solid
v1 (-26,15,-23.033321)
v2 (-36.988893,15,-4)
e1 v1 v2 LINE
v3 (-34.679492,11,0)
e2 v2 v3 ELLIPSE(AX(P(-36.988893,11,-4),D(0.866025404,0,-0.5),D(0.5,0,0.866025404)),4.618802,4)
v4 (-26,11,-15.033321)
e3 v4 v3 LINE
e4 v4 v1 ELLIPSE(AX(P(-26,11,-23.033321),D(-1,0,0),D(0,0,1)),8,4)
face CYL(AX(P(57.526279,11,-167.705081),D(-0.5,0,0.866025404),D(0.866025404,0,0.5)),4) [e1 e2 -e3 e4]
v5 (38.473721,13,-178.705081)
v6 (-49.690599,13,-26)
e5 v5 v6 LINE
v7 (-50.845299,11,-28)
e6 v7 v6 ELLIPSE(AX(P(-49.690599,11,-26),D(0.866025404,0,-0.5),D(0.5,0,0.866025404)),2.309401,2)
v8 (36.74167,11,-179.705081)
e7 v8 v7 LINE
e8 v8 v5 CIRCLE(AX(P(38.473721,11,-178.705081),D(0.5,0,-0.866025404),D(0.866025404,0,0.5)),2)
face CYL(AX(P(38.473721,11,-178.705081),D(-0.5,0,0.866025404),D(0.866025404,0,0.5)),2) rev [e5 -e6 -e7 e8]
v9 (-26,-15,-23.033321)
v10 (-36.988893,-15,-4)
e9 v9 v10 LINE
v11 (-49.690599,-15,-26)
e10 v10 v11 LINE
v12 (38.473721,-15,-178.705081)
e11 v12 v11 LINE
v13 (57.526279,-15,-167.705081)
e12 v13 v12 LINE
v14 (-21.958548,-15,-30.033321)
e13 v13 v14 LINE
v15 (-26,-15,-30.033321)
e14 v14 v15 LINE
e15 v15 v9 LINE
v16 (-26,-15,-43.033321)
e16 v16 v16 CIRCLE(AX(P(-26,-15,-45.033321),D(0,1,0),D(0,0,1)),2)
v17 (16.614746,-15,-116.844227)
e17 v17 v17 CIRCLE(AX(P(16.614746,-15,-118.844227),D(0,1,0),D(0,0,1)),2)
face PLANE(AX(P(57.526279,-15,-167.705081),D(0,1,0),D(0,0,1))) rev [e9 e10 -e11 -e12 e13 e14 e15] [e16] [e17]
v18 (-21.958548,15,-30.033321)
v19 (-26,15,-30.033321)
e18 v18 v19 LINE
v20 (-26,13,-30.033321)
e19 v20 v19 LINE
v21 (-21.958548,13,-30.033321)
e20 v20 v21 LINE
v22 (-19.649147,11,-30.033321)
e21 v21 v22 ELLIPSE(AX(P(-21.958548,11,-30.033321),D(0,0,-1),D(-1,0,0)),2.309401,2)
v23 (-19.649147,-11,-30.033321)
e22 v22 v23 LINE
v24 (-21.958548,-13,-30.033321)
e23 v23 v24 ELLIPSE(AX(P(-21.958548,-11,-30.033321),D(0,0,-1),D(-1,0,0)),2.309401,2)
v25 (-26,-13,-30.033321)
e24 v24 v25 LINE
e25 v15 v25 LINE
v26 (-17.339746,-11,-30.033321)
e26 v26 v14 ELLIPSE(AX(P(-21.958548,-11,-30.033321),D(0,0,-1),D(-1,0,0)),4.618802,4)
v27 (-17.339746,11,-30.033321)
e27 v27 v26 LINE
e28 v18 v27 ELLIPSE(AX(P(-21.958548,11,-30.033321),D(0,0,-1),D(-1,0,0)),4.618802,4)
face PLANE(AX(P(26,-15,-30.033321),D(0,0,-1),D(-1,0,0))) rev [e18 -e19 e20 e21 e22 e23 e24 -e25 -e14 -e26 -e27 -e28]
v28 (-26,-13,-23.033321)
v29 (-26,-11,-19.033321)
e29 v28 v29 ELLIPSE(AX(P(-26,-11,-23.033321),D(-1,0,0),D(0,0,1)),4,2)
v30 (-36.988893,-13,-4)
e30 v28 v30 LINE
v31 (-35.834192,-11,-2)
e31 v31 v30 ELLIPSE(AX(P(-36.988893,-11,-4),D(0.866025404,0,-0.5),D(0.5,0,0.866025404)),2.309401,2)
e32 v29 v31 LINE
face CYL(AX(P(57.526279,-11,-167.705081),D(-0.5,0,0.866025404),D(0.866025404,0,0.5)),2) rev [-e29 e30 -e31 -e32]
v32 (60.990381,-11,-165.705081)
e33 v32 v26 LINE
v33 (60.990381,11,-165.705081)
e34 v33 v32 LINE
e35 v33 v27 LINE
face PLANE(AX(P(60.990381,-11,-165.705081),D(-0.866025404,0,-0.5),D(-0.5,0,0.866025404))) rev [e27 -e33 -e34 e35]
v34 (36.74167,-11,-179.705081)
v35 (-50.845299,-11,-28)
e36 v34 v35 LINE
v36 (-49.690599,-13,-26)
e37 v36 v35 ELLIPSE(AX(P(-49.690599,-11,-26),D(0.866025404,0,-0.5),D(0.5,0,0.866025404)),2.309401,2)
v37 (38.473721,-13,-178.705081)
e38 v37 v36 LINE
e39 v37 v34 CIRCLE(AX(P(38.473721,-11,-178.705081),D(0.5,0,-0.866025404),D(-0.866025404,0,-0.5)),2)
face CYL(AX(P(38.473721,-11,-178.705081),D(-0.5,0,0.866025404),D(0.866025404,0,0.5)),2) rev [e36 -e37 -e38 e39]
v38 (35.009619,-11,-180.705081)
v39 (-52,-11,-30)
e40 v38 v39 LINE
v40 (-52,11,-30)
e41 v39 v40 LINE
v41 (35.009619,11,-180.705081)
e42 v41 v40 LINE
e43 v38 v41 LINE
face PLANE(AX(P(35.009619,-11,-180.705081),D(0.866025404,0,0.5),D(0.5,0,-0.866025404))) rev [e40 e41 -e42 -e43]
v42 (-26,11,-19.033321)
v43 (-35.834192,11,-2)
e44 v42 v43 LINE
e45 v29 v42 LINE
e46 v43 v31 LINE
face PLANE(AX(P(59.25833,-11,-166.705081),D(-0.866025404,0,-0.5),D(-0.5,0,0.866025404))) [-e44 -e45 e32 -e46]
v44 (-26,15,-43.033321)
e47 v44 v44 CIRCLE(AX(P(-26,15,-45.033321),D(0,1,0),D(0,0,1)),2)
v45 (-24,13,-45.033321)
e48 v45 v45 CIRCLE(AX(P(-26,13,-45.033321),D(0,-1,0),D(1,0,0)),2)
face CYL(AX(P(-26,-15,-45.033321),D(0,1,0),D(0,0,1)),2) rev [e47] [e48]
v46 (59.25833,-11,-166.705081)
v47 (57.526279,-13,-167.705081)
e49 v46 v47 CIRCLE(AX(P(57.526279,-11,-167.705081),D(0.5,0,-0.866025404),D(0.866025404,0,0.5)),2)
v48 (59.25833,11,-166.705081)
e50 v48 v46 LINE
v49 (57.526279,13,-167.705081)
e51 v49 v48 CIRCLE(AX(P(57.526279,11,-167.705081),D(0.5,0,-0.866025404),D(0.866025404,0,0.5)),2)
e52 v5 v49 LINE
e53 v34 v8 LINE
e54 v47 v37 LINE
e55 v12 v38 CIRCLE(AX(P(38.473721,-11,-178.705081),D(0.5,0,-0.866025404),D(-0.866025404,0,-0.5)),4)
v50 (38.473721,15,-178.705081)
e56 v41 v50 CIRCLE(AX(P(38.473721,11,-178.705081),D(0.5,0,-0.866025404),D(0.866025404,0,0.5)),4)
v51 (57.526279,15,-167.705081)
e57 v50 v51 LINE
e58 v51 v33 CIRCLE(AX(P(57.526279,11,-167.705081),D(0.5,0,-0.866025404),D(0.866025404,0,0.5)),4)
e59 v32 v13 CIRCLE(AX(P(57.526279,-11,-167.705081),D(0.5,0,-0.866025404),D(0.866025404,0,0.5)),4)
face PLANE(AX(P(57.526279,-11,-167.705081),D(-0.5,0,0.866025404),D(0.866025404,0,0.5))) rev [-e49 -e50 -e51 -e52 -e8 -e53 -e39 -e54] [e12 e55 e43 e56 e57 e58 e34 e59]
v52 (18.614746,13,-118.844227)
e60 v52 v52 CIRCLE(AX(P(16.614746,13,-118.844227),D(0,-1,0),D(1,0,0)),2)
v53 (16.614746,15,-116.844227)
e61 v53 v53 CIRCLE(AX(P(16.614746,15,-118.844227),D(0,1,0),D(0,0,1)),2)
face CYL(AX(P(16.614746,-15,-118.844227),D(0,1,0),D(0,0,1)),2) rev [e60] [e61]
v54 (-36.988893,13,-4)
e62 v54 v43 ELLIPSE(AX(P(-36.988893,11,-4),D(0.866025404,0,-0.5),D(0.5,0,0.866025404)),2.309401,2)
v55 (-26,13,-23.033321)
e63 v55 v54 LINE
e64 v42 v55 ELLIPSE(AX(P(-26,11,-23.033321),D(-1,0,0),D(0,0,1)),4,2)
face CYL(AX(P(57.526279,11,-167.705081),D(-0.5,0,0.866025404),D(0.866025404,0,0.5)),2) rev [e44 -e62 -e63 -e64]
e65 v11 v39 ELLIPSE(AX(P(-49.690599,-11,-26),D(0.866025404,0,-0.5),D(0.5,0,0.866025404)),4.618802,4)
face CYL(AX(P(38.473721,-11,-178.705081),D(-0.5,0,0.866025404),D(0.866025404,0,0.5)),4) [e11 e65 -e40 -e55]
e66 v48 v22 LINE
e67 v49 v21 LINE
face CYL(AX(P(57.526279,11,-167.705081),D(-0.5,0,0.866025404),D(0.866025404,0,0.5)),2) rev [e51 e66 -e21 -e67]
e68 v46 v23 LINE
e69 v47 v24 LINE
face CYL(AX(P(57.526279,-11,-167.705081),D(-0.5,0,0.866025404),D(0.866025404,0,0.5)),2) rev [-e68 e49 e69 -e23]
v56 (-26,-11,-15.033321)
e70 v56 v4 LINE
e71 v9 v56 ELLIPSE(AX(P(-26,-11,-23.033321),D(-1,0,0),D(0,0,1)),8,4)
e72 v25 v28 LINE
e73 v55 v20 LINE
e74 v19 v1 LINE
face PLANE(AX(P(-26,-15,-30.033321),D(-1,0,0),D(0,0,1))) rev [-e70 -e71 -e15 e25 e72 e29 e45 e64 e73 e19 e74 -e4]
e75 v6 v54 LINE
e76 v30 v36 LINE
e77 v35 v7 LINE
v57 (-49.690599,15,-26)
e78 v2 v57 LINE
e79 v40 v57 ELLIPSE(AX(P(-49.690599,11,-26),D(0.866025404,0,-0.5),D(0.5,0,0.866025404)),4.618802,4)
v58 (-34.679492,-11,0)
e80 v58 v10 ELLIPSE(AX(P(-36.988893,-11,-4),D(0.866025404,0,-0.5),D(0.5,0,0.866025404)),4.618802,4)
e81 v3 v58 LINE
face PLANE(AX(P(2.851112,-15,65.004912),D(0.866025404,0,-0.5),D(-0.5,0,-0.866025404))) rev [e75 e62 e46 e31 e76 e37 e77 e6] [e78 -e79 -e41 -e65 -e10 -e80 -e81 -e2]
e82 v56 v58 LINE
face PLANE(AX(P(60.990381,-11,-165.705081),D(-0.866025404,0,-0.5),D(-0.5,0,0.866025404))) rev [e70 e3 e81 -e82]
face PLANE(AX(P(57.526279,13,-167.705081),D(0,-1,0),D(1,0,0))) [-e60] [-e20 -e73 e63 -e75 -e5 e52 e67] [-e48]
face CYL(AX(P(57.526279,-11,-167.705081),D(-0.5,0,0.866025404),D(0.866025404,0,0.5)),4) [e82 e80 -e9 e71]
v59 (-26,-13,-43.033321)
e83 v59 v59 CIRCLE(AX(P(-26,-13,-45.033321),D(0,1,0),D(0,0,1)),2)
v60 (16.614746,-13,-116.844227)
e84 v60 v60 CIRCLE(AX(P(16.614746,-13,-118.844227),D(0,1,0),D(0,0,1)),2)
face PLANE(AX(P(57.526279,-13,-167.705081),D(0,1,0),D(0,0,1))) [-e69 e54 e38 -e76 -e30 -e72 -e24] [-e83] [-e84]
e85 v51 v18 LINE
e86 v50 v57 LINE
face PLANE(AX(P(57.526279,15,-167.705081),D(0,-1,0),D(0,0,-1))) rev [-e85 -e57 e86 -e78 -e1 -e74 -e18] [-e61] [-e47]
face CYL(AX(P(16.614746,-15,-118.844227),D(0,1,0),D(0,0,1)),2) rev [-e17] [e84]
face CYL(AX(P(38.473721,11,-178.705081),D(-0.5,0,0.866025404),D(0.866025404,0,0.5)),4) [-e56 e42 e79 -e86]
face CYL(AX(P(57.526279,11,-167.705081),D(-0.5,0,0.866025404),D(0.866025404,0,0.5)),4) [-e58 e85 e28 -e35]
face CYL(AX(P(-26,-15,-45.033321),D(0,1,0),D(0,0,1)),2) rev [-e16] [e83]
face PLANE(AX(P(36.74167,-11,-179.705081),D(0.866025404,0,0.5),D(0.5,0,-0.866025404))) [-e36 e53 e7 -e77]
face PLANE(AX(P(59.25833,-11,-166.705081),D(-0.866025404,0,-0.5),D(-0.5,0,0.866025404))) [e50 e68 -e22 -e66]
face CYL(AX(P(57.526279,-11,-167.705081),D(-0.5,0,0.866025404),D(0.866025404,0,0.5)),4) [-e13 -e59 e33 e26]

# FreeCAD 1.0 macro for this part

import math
import FreeCAD as App
import Part
import Sketcher

V = App.Vector
Q = App.Units.Quantity

doc = App.newDocument("Part")
body = doc.addObject("PartDesign::Body", "Body")

# Sketch on an angled plane
sketch1 = body.newObject("Sketcher::SketchObject", "Sketch")
sketch1.Placement = App.Placement(V(-52, 0, 0), App.Rotation(V(-0.866025404, 0, -0.5), V(0, 1, 0), V(0.5, 0, -0.866025404), "ZXY"))
sketch1.addGeometry([
    Part.LineSegment(V(-11, -15, 0), V(11, -15, 0)),  # 0
    Part.ArcOfCircle(Part.Circle(V(11, -11, 0), V(0, 0, 1), 4), math.radians(-90), math.radians(0)),  # 1
    Part.LineSegment(V(15, -11, 0), V(15, 11, 0)),  # 2
    Part.ArcOfCircle(Part.Circle(V(11, 11, 0), V(0, 0, 1), 4), math.radians(0), math.radians(90)),  # 3
    Part.LineSegment(V(11, 15, 0), V(-11, 15, 0)),  # 4
    Part.ArcOfCircle(Part.Circle(V(-11, 11, 0), V(0, 0, 1), 4), math.radians(90), math.radians(180)),  # 5
    Part.LineSegment(V(-15, 11, 0), V(-15, -11, 0)),  # 6
    Part.ArcOfCircle(Part.Circle(V(-11, -11, 0), V(0, 0, 1), 4), math.radians(180), math.radians(270)),  # 7
    Part.LineSegment(V(11, -13, 0), V(-11, -13, 0)),  # 8
    Part.ArcOfCircle(Part.Circle(V(-11, -11, 0), V(0, 0, 1), 2), math.radians(-180), math.radians(-90)),  # 9
    Part.LineSegment(V(-13, -11, 0), V(-13, 11, 0)),  # 10
    Part.ArcOfCircle(Part.Circle(V(-11, 11, 0), V(0, 0, 1), 2), math.radians(90), math.radians(180)),  # 11
    Part.LineSegment(V(-11, 13, 0), V(11, 13, 0)),  # 12
    Part.ArcOfCircle(Part.Circle(V(11, 11, 0), V(0, 0, 1), 2), math.radians(0), math.radians(90)),  # 13
    Part.LineSegment(V(13, 11, 0), V(13, -11, 0)),  # 14
    Part.ArcOfCircle(Part.Circle(V(11, -11, 0), V(0, 0, 1), 2), math.radians(-90), math.radians(0)),  # 15
], False)
sketch1.addConstraint([
    Sketcher.Constraint("Tangent", 0, 2, 1, 1),
    Sketcher.Constraint("Tangent", 1, 2, 2, 1),
    Sketcher.Constraint("Tangent", 2, 2, 3, 1),
    Sketcher.Constraint("Tangent", 3, 2, 4, 1),
    Sketcher.Constraint("Tangent", 4, 2, 5, 1),
    Sketcher.Constraint("Tangent", 5, 2, 6, 1),
    Sketcher.Constraint("Tangent", 6, 2, 7, 1),
    Sketcher.Constraint("Tangent", 7, 2, 0, 1),
    Sketcher.Constraint("Tangent", 8, 2, 9, 2),
    Sketcher.Constraint("Tangent", 9, 1, 10, 1),
    Sketcher.Constraint("Tangent", 10, 2, 11, 2),
    Sketcher.Constraint("Tangent", 11, 1, 12, 1),
    Sketcher.Constraint("Tangent", 12, 2, 13, 2),
    Sketcher.Constraint("Tangent", 13, 1, 14, 1),
    Sketcher.Constraint("Tangent", 14, 2, 15, 2),
    Sketcher.Constraint("Tangent", 15, 1, 8, 1),
    Sketcher.Constraint("Horizontal", 0),
    Sketcher.Constraint("Vertical", 2),
    Sketcher.Constraint("Horizontal", 4),
    Sketcher.Constraint("Vertical", 6),
    Sketcher.Constraint("Horizontal", 8),
    Sketcher.Constraint("Vertical", 10),
    Sketcher.Constraint("Horizontal", 12),
    Sketcher.Constraint("Vertical", 14),
    Sketcher.Constraint("Coincident", 9, 3, 7, 3),
    Sketcher.Constraint("Coincident", 11, 3, 5, 3),
    Sketcher.Constraint("Coincident", 13, 3, 3, 3),
    Sketcher.Constraint("Equal", 1, 3),
    Sketcher.Constraint("Equal", 3, 5),
    Sketcher.Constraint("Equal", 5, 7),
    Sketcher.Constraint("Equal", 13, 15),
    Sketcher.Constraint("Symmetric", 1, 3, 5, 3, -1, 1),
    Sketcher.Constraint("Equal", 12, 2),
    Sketcher.Constraint("Radius", 1, 4.0),
    Sketcher.Constraint("Radius", 9, 2.0),
    Sketcher.Constraint("DistanceX", 0, 1, 0, 2, 22.0),
])
pad1 = body.newObject("PartDesign::Pad", "Pad")
pad1.Profile = sketch1
pad1.Length = 200

# Sketch on XZ plane
sketch2 = body.newObject("Sketcher::SketchObject", "Sketch001")
sketch2.AttachmentSupport = (doc.getObject("XZ_Plane"), [""])
sketch2.MapMode = "FlatFace"
sketch2.addGeometry([
    Part.LineSegment(V(3, 65, 0), V(-66, -53, 0)),
    Part.LineSegment(V(-66, -53, 0), V(-92, -38, 0)),
    Part.LineSegment(V(-92, -38, 0), V(-23, 80, 0)),
    Part.LineSegment(V(-23, 80, 0), V(3, 65, 0)),
], False)
sketch2.addConstraint([
    Sketcher.Constraint("Coincident", 0, 2, 1, 1),
    Sketcher.Constraint("Coincident", 1, 2, 2, 1),
    Sketcher.Constraint("Coincident", 2, 2, 3, 1),
    Sketcher.Constraint("Coincident", 3, 2, 0, 1),
    Sketcher.Constraint("Perpendicular", 0, 1),
    Sketcher.Constraint("Perpendicular", 1, 2),
    Sketcher.Constraint("Perpendicular", 2, 3),
    Sketcher.Constraint("Angle", 0, Q("-120 deg")),
    Sketcher.Constraint("Distance", 1, 30.0),
    Sketcher.Constraint("DistanceY", 1, 2, 2, 2, 118.435898),
    Sketcher.Constraint("DistanceX", 1, 2, -1, 1, 91.508648),
    Sketcher.Constraint("DistanceY", 0, 2, -1, 1, 53.430986),
])
pocket1 = body.newObject("PartDesign::Pocket", "Pocket")
pocket1.Profile = sketch2
pocket1.Type = "ThroughAll"
pocket1.Midplane = True

# Sketch on XZ plane
sketch3 = body.newObject("Sketcher::SketchObject", "Sketch002")
sketch3.AttachmentSupport = (doc.getObject("XZ_Plane"), [""])
sketch3.MapMode = "FlatFace"
sketch3.addGeometry([
    Part.Circle(V(-26, -45, 0), V(0, 0, 1), 2),
    Part.Circle(V(16.6, -118.8, 0), V(0, 0, 1), 2),
], False)
sketch3.addConstraint([
    Sketcher.Constraint("Equal", 0, 1),
    Sketcher.Constraint("Diameter", 0, 4.0),
    Sketcher.Constraint("DistanceX", 0, 3, -1, 1, 26.0),
    Sketcher.Constraint("DistanceY", 0, 3, -1, 1, 45.033321),
    Sketcher.Constraint("DistanceX", -1, 1, 1, 3, 16.614746),
    Sketcher.Constraint("DistanceY", 1, 3, -1, 1, 118.844227),
])
pocket2 = body.newObject("PartDesign::Pocket", "Pocket001")
pocket2.Profile = sketch3
pocket2.Type = "ThroughAll"
pocket2.Midplane = True

# Sketch on XZ plane
sketch4 = body.newObject("Sketcher::SketchObject", "Sketch003")
sketch4.AttachmentSupport = (doc.getObject("XZ_Plane"), [""])
sketch4.MapMode = "FlatFace"
sketch4.addGeometry([
    Part.LineSegment(V(-26, -30, 0), V(-26, -5, 0)),
    Part.LineSegment(V(-26, -5, 0), V(26, -5, 0)),
    Part.LineSegment(V(26, -5, 0), V(26, -30, 0)),
    Part.LineSegment(V(26, -30, 0), V(-26, -30, 0)),
], False)
sketch4.addConstraint([
    Sketcher.Constraint("Coincident", 0, 2, 1, 1),
    Sketcher.Constraint("Coincident", 1, 2, 2, 1),
    Sketcher.Constraint("Coincident", 2, 2, 3, 1),
    Sketcher.Constraint("Coincident", 3, 2, 0, 1),
    Sketcher.Constraint("Vertical", 0),
    Sketcher.Constraint("Horizontal", 1),
    Sketcher.Constraint("Vertical", 2),
    Sketcher.Constraint("Horizontal", 3),
    Sketcher.Constraint("DistanceX", 1, 1, 1, 2, 52.0),
    Sketcher.Constraint("DistanceY", 0, 1, 0, 2, 25.0),
    Sketcher.Constraint("DistanceX", 0, 2, -1, 1, 26.0),
    Sketcher.Constraint("DistanceY", 0, 2, -1, 1, 5.033321),
])
pocket3 = body.newObject("PartDesign::Pocket", "Pocket002")
pocket3.Profile = sketch4
pocket3.Type = "ThroughAll"
pocket3.Midplane = True

doc.recompute()
